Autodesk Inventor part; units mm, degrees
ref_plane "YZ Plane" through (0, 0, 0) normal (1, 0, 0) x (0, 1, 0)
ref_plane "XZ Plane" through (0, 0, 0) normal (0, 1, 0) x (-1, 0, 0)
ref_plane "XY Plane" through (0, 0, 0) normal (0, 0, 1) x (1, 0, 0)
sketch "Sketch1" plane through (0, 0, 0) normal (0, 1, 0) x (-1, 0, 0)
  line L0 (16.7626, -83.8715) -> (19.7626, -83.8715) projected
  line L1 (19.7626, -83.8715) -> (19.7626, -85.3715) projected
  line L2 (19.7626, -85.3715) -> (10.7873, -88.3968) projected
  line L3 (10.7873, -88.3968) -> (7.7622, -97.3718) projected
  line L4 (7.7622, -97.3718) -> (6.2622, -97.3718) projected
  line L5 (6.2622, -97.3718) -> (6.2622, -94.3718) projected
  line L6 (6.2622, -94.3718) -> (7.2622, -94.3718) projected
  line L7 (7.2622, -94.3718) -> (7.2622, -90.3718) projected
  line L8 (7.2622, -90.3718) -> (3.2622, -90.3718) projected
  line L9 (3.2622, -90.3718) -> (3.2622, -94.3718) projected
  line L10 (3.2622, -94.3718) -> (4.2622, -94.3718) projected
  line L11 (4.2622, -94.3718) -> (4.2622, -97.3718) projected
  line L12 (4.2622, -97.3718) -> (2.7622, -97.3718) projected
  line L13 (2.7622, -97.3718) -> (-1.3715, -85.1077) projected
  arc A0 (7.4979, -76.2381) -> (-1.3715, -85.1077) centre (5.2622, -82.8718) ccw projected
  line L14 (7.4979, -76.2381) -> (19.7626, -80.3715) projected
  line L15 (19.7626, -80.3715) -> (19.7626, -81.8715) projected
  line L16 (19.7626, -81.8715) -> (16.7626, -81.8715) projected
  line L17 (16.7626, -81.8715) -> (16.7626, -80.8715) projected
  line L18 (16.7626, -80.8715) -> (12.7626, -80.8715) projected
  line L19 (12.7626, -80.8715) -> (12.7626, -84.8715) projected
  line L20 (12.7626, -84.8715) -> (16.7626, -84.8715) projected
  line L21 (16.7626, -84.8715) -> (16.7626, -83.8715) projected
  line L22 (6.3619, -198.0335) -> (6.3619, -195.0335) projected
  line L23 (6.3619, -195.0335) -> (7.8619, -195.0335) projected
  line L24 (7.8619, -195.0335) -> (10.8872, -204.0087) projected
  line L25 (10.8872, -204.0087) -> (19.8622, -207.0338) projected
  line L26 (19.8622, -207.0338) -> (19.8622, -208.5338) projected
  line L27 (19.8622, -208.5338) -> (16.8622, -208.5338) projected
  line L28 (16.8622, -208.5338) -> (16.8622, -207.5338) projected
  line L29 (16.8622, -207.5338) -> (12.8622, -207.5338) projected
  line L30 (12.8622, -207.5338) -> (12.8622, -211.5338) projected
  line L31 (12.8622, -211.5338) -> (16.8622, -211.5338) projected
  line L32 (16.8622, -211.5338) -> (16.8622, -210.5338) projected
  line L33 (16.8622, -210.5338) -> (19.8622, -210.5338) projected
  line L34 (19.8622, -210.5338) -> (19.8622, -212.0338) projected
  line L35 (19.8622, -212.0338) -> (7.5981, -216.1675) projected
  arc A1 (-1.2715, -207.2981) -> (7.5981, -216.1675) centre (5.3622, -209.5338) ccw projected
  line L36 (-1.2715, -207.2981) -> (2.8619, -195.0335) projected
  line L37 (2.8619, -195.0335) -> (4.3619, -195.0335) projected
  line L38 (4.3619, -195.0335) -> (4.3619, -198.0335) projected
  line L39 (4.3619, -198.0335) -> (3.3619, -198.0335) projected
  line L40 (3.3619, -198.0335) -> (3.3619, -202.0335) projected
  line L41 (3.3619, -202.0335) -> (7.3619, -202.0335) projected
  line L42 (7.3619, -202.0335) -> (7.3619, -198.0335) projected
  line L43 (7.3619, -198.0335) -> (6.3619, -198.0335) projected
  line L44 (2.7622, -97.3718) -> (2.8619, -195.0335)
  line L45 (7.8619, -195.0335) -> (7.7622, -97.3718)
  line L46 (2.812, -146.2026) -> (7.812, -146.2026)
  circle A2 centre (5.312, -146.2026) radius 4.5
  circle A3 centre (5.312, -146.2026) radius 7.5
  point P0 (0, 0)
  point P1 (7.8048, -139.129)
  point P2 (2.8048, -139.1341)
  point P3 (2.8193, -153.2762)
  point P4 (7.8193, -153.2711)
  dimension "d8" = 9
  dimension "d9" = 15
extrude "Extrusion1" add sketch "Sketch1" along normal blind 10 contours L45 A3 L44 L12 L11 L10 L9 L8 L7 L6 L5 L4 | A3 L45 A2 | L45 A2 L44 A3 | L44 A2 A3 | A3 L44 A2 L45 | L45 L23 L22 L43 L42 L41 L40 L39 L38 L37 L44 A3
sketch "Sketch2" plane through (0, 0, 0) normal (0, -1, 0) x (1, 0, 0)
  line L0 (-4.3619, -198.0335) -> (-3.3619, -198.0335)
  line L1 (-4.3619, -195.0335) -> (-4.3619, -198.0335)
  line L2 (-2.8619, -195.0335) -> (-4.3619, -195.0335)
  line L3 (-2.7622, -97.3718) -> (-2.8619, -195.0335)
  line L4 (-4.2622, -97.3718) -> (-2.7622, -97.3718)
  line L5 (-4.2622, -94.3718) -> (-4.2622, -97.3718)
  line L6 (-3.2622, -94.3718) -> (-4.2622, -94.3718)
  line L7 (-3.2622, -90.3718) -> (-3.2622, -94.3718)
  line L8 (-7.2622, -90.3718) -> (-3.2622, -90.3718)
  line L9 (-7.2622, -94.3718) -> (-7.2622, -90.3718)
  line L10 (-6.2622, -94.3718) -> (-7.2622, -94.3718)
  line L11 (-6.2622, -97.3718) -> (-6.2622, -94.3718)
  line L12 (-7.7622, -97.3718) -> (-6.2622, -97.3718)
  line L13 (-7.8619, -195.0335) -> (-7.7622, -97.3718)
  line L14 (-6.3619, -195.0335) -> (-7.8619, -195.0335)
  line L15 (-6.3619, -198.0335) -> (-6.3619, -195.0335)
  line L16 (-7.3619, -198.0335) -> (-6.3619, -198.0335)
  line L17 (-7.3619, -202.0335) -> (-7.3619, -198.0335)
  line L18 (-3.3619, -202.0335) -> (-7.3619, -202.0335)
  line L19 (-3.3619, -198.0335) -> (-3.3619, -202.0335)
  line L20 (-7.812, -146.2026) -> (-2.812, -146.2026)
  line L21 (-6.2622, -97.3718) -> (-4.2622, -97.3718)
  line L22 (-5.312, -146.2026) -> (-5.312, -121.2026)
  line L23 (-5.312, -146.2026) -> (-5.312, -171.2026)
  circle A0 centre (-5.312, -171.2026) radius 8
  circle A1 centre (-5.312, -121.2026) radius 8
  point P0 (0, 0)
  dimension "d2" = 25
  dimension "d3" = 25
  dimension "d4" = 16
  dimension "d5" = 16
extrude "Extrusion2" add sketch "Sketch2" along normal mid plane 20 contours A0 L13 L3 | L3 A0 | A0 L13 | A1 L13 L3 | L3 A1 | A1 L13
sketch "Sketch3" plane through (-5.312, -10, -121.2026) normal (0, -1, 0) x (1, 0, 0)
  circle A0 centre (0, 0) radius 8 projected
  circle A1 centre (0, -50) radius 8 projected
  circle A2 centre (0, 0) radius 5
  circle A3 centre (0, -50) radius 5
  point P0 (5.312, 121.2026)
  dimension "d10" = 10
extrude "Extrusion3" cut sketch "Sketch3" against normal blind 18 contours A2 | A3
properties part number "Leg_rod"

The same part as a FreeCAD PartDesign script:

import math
import FreeCAD as App
import Part
import Sketcher
from FreeCAD import Vector
Q = App.Units.Quantity

doc = App.newDocument("Part")
params = doc.addObject("Spreadsheet::Sheet", "Params")
for row, (alias, value) in enumerate([
    ("sketch1_diameter", "9 mm"),
    ("sketch1_radius", "7.5 mm"),
    ("sketch1_width", "1 mm"),
    ("sketch1_width2", "4 mm"),
    ("sketch1_height", "3 mm"),
    ("pad1_length", "10 mm"),
    ("sketch2_diameter", "16 mm"),
    ("pad2_length", "20 mm"),
    ("sketch3_diameter", "10 mm"),
    ("pocket1_length", "18 mm"),
], start=1):
    params.set(f"A{row}", alias)
    params.set(f"B{row}", "=" + value)
    params.setAlias(f"B{row}", alias)

body = doc.addObject("PartDesign::Body", "Body")

sketch1 = doc.addObject("Sketcher::SketchObject", "Sketch")
body.addObject(sketch1)
sketch1.AttachmentSupport = (doc.XZ_Plane, [""])
sketch1.MapMode = "FlatFace"
sketch1.addGeometry(Part.LineSegment(Vector(-7.8, -139.1, 0), Vector(-7.8, -97.4, 0)), False)
sketch1.addGeometry(Part.LineSegment(Vector(-7.8, -97.4, 0), Vector(-6.3, -97.4, 0)), False)
sketch1.addGeometry(Part.LineSegment(Vector(-6.3, -97.4, 0), Vector(-6.3, -94.4, 0)), False)
sketch1.addGeometry(Part.LineSegment(Vector(-6.3, -94.4, 0), Vector(-7.3, -94.4, 0)), False)
sketch1.addGeometry(Part.LineSegment(Vector(-7.3, -94.4, 0), Vector(-7.3, -90.4, 0)), False)
sketch1.addGeometry(Part.LineSegment(Vector(-7.3, -90.4, 0), Vector(-3.3, -90.4, 0)), False)
sketch1.addGeometry(Part.LineSegment(Vector(-3.3, -90.4, 0), Vector(-3.3, -94.4, 0)), False)
sketch1.addGeometry(Part.LineSegment(Vector(-3.3, -94.4, 0), Vector(-4.3, -94.4, 0)), False)
sketch1.addGeometry(Part.LineSegment(Vector(-4.3, -94.4, 0), Vector(-4.3, -97.4, 0)), False)
sketch1.addGeometry(Part.LineSegment(Vector(-4.3, -97.4, 0), Vector(-2.8, -97.4, 0)), False)
sketch1.addGeometry(Part.LineSegment(Vector(-2.8, -97.4, 0), Vector(-2.8, -139.1, 0)), False)
sketch1.addGeometry(Part.ArcOfCircle(Part.Circle(Vector(-5.3, -146.2, 0), Vector(0, 0, 1), 7.5), math.radians(-71), math.radians(70)), False)
sketch1.addGeometry(Part.LineSegment(Vector(-2.8, -153.3, 0), Vector(-2.9, -195, 0)), False)
sketch1.addGeometry(Part.LineSegment(Vector(-2.9, -195, 0), Vector(-4.4, -195, 0)), False)
sketch1.addGeometry(Part.LineSegment(Vector(-4.4, -195, 0), Vector(-4.4, -198, 0)), False)
sketch1.addGeometry(Part.LineSegment(Vector(-4.4, -198, 0), Vector(-3.4, -198, 0)), False)
sketch1.addGeometry(Part.LineSegment(Vector(-3.4, -198, 0), Vector(-3.4, -202, 0)), False)
sketch1.addGeometry(Part.LineSegment(Vector(-3.4, -202, 0), Vector(-7.4, -202, 0)), False)
sketch1.addGeometry(Part.LineSegment(Vector(-7.4, -202, 0), Vector(-7.4, -198, 0)), False)
sketch1.addGeometry(Part.LineSegment(Vector(-7.4, -198, 0), Vector(-6.4, -198, 0)), False)
sketch1.addGeometry(Part.LineSegment(Vector(-6.4, -198, 0), Vector(-6.4, -195, 0)), False)
sketch1.addGeometry(Part.LineSegment(Vector(-6.4, -195, 0), Vector(-7.9, -195, 0)), False)
sketch1.addGeometry(Part.LineSegment(Vector(-7.9, -195, 0), Vector(-7.8, -153.3, 0)), False)
sketch1.addGeometry(Part.ArcOfCircle(Part.Circle(Vector(-5.3, -146.2, 0), Vector(0, 0, 1), 7.5), math.radians(109), math.radians(250)), False)
sketch1.addGeometry(Part.Circle(Vector(-5.3, -146.2, 0), Vector(0, 0, 1), 4.5), False)
sketch1.addConstraint(Sketcher.Constraint("Coincident", 0, 2, 1, 1))
sketch1.addConstraint(Sketcher.Constraint("Coincident", 1, 2, 2, 1))
sketch1.addConstraint(Sketcher.Constraint("Coincident", 2, 2, 3, 1))
sketch1.addConstraint(Sketcher.Constraint("Coincident", 3, 2, 4, 1))
sketch1.addConstraint(Sketcher.Constraint("Coincident", 4, 2, 5, 1))
sketch1.addConstraint(Sketcher.Constraint("Coincident", 5, 2, 6, 1))
sketch1.addConstraint(Sketcher.Constraint("Coincident", 6, 2, 7, 1))
sketch1.addConstraint(Sketcher.Constraint("Coincident", 7, 2, 8, 1))
sketch1.addConstraint(Sketcher.Constraint("Coincident", 8, 2, 9, 1))
sketch1.addConstraint(Sketcher.Constraint("Coincident", 9, 2, 10, 1))
sketch1.addConstraint(Sketcher.Constraint("Coincident", 10, 2, 11, 2))
sketch1.addConstraint(Sketcher.Constraint("Coincident", 11, 1, 12, 1))
sketch1.addConstraint(Sketcher.Constraint("Coincident", 12, 2, 13, 1))
sketch1.addConstraint(Sketcher.Constraint("Coincident", 13, 2, 14, 1))
sketch1.addConstraint(Sketcher.Constraint("Coincident", 14, 2, 15, 1))
sketch1.addConstraint(Sketcher.Constraint("Coincident", 15, 2, 16, 1))
sketch1.addConstraint(Sketcher.Constraint("Coincident", 16, 2, 17, 1))
sketch1.addConstraint(Sketcher.Constraint("Coincident", 17, 2, 18, 1))
sketch1.addConstraint(Sketcher.Constraint("Coincident", 18, 2, 19, 1))
sketch1.addConstraint(Sketcher.Constraint("Coincident", 19, 2, 20, 1))
sketch1.addConstraint(Sketcher.Constraint("Coincident", 20, 2, 21, 1))
sketch1.addConstraint(Sketcher.Constraint("Coincident", 21, 2, 22, 1))
sketch1.addConstraint(Sketcher.Constraint("Coincident", 22, 2, 23, 2))
sketch1.addConstraint(Sketcher.Constraint("Coincident", 23, 1, 0, 1))
sketch1.addConstraint(Sketcher.Constraint("Horizontal", 1))
sketch1.addConstraint(Sketcher.Constraint("Vertical", 2))
sketch1.addConstraint(Sketcher.Constraint("Horizontal", 3))
sketch1.addConstraint(Sketcher.Constraint("Vertical", 4))
sketch1.addConstraint(Sketcher.Constraint("Horizontal", 5))
sketch1.addConstraint(Sketcher.Constraint("Vertical", 6))
sketch1.addConstraint(Sketcher.Constraint("Horizontal", 7))
sketch1.addConstraint(Sketcher.Constraint("Vertical", 8))
sketch1.addConstraint(Sketcher.Constraint("Horizontal", 9))
sketch1.addConstraint(Sketcher.Constraint("Horizontal", 13))
sketch1.addConstraint(Sketcher.Constraint("Vertical", 14))
sketch1.addConstraint(Sketcher.Constraint("Horizontal", 15))
sketch1.addConstraint(Sketcher.Constraint("Vertical", 16))
sketch1.addConstraint(Sketcher.Constraint("Horizontal", 17))
sketch1.addConstraint(Sketcher.Constraint("Vertical", 18))
sketch1.addConstraint(Sketcher.Constraint("Horizontal", 19))
sketch1.addConstraint(Sketcher.Constraint("Vertical", 20))
sketch1.addConstraint(Sketcher.Constraint("Horizontal", 21))
sketch1.addConstraint(Sketcher.Constraint("Coincident", 23, 3, 11, 3))
sketch1.addConstraint(Sketcher.Constraint("Coincident", 24, 3, 11, 3))
sketch1.addConstraint(Sketcher.Constraint("Equal", 11, 23))
sketch1.addConstraint(Sketcher.Constraint("Parallel", 0, 10))
sketch1.addConstraint(Sketcher.Constraint("Parallel", 10, 12))
sketch1.addConstraint(Sketcher.Constraint("Parallel", 12, 22))
sketch1.addConstraint(Sketcher.Constraint("Horizontal", 3, 2, 6, 2))
sketch1.addConstraint(Sketcher.Constraint("Horizontal", 1, 2, 8, 2))
sketch1.addConstraint(Sketcher.Constraint("Horizontal", 15, 2, 18, 2))
sketch1.addConstraint(Sketcher.Constraint("Horizontal", 13, 2, 20, 2))
sketch1.addConstraint(Sketcher.Constraint("Equal", 3, 7))
sketch1.addConstraint(Sketcher.Constraint("Equal", 1, 9))
sketch1.addConstraint(Sketcher.Constraint("Equal", 9, 13))
sketch1.addConstraint(Sketcher.Constraint("Equal", 7, 15))
sketch1.addConstraint(Sketcher.Constraint("Equal", 5, 17))
sketch1.addConstraint(Sketcher.Constraint("Equal", 15, 19))
sketch1.addConstraint(Sketcher.Constraint("Equal", 13, 21))
sketch1.addConstraint(Sketcher.Constraint("Equal", 17, 4))
sketch1.addConstraint(Sketcher.Constraint("Equal", 8, 14))
sketch1.addConstraint(Sketcher.Constraint("Equal", 6, 16))
sketch1.addConstraint(Sketcher.Constraint("Equal", 0, 12))
sketch1.addConstraint(Sketcher.Constraint("Equal", 10, 22))
sketch1.addConstraint(Sketcher.Constraint("Diameter", 24, Q("9 mm")))
sketch1.addConstraint(Sketcher.Constraint("Radius", 11, Q("7.5 mm")))
sketch1.addConstraint(Sketcher.Constraint("DistanceX", 3, 2, 3, 1, Q("1 mm")))
sketch1.addConstraint(Sketcher.Constraint("DistanceX", 5, 1, 5, 2, Q("4 mm")))
sketch1.addConstraint(Sketcher.Constraint("DistanceY", 2, 1, 2, 2, Q("3 mm")))
sketch1.addConstraint(Sketcher.Constraint("DistanceX", 1, 1, 1, 2, Q("1.5 mm")))
sketch1.addConstraint(Sketcher.Constraint("DistanceX", 11, 3, 12, 2, Q("2.45 mm")))
sketch1.addConstraint(Sketcher.Constraint("DistanceX", 11, 3, -1, 1, Q("5.312 mm")))
sketch1.addConstraint(Sketcher.Constraint("DistanceY", 10, 2, -1, 1, Q("139.134 mm")))
sketch1.addConstraint(Sketcher.Constraint("DistanceY", 22, 2, -1, 1, Q("153.271 mm")))
sketch1.addConstraint(Sketcher.Constraint("DistanceY", 12, 2, 11, 3, Q("48.831 mm")))
sketch1.setExpression("Constraints[64]", "Params.sketch1_diameter")
sketch1.setExpression("Constraints[65]", "Params.sketch1_radius")
sketch1.setExpression("Constraints[66]", "Params.sketch1_width")
sketch1.setExpression("Constraints[67]", "Params.sketch1_width2")
sketch1.setExpression("Constraints[68]", "Params.sketch1_height")
pad1 = doc.addObject("PartDesign::Pad", "Pad")
body.addObject(pad1)
pad1.Profile = sketch1
pad1.setExpression("Length", "Params.pad1_length")
pad1.Reversed = True

sketch2 = doc.addObject("Sketcher::SketchObject", "Sketch001")
body.addObject(sketch2)
sketch2.AttachmentSupport = (doc.XZ_Plane, [""])
sketch2.MapMode = "FlatFace"
sketch2.addGeometry(Part.Circle(Vector(-5, -171, 0), Vector(0, 0, 1), 8), False)
sketch2.addGeometry(Part.Circle(Vector(-5, -121, 0), Vector(0, 0, 1), 8), False)
sketch2.addConstraint(Sketcher.Constraint("Equal", 0, 1))
sketch2.addConstraint(Sketcher.Constraint("Vertical", 0, 3, 1, 3))
sketch2.addConstraint(Sketcher.Constraint("Diameter", 0, Q("16 mm")))
sketch2.addConstraint(Sketcher.Constraint("DistanceY", 0, 3, 1, 3, Q("50 mm")))
sketch2.addConstraint(Sketcher.Constraint("DistanceX", 0, 3, -1, 1, Q("5.312 mm")))
sketch2.addConstraint(Sketcher.Constraint("DistanceY", 0, 3, -1, 1, Q("171.2026 mm")))
sketch2.setExpression("Constraints[2]", "Params.sketch2_diameter")
pad2 = doc.addObject("PartDesign::Pad", "Pad001")
body.addObject(pad2)
pad2.Profile = sketch2
pad2.setExpression("Length", "Params.pad2_length")
pad2.Midplane = True

sketch3 = doc.addObject("Sketcher::SketchObject", "Sketch002")
body.addObject(sketch3)
sketch3.AttachmentSupport = (doc.XZ_Plane, [""])
sketch3.MapMode = "FlatFace"
sketch3.AttachmentOffset = App.Placement(Vector(0, 0, 10), App.Rotation())
sketch3.addGeometry(Part.Circle(Vector(-5, -121, 0), Vector(0, 0, 1), 5), False)
sketch3.addGeometry(Part.Circle(Vector(-5, -171, 0), Vector(0, 0, 1), 5), False)
sketch3.addConstraint(Sketcher.Constraint("Equal", 0, 1))
sketch3.addConstraint(Sketcher.Constraint("Vertical", 0, 3, 1, 3))
sketch3.addConstraint(Sketcher.Constraint("Diameter", 0, Q("10 mm")))
sketch3.addConstraint(Sketcher.Constraint("DistanceY", 1, 3, 0, 3, Q("50 mm")))
sketch3.addConstraint(Sketcher.Constraint("DistanceX", 0, 3, -1, 1, Q("5.312 mm")))
sketch3.addConstraint(Sketcher.Constraint("DistanceY", 0, 3, -1, 1, Q("121.2026 mm")))
sketch3.setExpression("Constraints[2]", "Params.sketch3_diameter")
pocket1 = doc.addObject("PartDesign::Pocket", "Pocket")
body.addObject(pocket1)
pocket1.Profile = sketch3
pocket1.setExpression("Length", "Params.pocket1_length")

doc.recompute()
